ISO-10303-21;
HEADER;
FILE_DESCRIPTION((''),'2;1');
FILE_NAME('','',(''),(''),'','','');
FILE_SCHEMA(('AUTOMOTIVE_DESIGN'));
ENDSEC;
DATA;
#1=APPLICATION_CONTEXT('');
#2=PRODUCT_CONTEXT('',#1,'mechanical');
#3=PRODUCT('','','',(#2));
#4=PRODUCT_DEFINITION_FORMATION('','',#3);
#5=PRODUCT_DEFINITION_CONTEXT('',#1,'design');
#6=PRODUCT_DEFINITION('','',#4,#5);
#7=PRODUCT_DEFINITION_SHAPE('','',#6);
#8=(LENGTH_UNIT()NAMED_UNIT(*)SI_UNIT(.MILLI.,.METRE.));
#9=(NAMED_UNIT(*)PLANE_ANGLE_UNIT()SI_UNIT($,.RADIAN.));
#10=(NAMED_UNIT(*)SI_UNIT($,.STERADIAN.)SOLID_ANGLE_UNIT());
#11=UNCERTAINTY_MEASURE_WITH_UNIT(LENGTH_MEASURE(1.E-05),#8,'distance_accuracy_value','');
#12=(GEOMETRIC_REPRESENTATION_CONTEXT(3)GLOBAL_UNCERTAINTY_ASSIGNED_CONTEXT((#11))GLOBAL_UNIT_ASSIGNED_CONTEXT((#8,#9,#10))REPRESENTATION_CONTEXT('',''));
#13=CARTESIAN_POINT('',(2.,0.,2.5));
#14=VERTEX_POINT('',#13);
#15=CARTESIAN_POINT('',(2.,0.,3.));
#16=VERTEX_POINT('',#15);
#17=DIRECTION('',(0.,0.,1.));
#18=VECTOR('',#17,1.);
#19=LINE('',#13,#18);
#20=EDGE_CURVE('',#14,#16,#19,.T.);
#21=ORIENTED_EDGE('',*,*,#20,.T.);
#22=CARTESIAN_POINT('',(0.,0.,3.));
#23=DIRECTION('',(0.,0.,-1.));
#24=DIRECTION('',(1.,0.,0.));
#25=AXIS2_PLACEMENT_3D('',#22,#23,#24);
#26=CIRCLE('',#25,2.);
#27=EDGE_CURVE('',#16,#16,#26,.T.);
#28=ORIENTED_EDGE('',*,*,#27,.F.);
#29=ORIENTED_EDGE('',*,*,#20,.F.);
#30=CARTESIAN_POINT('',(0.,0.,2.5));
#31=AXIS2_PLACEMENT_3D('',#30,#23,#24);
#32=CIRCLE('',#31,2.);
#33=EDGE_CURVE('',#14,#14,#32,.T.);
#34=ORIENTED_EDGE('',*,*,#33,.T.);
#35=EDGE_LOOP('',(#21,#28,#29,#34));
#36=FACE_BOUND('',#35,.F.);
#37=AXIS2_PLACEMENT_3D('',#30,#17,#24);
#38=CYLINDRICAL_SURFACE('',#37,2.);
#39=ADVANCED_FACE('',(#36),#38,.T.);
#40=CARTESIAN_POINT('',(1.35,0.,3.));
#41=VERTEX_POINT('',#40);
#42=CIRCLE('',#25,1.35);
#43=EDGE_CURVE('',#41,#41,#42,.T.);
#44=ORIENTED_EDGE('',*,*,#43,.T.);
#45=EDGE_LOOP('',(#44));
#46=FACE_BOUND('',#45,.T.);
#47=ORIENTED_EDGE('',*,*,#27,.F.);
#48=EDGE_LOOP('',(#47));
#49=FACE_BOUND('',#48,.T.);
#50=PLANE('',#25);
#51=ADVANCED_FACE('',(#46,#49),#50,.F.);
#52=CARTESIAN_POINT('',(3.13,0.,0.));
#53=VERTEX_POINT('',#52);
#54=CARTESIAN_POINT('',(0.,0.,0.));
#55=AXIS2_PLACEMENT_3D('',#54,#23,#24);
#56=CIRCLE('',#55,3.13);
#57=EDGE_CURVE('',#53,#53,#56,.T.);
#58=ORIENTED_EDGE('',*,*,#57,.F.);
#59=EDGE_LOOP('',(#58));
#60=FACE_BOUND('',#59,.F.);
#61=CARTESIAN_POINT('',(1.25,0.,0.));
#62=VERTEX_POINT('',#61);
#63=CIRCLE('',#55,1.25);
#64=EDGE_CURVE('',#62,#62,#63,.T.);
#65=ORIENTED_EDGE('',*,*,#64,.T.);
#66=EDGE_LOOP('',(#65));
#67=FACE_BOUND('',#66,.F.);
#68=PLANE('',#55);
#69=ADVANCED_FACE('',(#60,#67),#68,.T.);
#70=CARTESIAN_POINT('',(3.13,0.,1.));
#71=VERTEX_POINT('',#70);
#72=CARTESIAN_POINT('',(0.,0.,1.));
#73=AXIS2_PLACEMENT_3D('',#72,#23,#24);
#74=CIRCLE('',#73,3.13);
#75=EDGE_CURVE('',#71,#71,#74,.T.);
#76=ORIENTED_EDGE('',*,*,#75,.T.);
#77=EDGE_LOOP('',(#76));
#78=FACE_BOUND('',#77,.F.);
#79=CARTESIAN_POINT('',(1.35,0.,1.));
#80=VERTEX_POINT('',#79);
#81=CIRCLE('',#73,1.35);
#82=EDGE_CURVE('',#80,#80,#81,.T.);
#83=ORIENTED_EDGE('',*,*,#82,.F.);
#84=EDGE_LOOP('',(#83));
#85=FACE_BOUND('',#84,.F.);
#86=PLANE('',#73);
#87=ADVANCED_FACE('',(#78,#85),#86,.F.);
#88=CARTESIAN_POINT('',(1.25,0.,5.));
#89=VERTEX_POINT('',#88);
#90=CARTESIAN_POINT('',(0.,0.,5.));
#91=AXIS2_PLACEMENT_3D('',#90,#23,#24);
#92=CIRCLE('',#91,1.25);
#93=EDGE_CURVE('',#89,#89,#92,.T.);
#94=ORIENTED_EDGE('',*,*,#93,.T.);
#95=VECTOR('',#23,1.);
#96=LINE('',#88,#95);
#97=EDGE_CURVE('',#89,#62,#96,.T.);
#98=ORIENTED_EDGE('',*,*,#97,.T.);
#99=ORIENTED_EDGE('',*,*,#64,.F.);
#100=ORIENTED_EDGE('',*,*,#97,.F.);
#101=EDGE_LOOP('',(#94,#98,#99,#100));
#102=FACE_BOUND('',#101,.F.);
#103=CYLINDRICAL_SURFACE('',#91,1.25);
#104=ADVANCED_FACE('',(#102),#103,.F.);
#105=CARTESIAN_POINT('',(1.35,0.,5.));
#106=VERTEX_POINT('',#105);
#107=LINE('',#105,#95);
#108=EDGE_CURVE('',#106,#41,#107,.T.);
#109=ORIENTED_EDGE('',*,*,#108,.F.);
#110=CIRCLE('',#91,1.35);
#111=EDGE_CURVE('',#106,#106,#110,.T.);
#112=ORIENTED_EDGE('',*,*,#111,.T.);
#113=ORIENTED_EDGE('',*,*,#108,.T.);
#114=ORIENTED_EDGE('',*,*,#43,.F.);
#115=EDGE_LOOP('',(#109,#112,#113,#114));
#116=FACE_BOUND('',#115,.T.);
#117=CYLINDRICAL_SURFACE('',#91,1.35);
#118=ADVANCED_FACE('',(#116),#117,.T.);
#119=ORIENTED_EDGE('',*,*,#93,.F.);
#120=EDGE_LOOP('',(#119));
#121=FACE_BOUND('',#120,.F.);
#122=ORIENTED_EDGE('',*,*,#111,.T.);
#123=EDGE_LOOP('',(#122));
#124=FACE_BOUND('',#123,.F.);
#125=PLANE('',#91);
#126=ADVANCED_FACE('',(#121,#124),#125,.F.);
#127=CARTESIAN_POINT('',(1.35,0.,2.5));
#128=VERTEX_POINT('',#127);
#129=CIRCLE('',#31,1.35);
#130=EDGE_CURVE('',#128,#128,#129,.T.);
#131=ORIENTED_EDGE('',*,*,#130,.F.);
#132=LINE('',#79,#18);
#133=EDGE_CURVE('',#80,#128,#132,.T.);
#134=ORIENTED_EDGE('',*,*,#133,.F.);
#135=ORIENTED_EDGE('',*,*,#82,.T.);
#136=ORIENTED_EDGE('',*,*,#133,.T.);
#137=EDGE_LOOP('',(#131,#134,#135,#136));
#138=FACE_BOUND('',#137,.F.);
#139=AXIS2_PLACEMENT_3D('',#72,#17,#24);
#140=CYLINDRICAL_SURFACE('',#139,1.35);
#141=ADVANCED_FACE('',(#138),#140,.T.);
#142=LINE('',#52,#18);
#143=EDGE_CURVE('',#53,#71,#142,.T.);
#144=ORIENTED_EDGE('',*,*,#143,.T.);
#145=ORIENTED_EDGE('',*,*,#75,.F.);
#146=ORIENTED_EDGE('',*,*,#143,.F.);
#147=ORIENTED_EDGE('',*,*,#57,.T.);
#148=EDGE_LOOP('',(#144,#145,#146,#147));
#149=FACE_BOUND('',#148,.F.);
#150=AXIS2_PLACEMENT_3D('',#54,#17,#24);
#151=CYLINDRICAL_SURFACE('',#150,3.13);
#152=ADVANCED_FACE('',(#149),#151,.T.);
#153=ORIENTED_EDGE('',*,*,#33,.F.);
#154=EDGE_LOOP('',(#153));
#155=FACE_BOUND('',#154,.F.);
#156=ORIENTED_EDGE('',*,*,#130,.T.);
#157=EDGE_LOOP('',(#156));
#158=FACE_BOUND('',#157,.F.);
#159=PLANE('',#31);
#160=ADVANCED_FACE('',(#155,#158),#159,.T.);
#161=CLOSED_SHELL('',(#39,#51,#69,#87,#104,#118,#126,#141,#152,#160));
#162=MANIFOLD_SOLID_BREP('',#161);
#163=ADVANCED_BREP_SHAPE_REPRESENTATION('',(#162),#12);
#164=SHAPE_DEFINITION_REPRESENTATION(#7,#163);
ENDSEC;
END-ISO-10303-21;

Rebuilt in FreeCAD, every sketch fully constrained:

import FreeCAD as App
import Part
import Sketcher

V = App.Vector
Q = App.Units.Quantity

doc = App.newDocument("Part")
params = doc.addObject("Spreadsheet::Sheet", "Params")
for row, (alias, value) in enumerate([
    ("sketch1_height", "1 mm"),
    ("sketch1_height2", "2 mm"),
    ("sketch1_height3", "5 mm"),
    ("sketch1_width", "0.1 mm"),
    ("sketch1_height4", "1.5 mm"),
    ("revolution_angle", "360 deg"),
], start=1):
    params.set(f"A{row}", alias)
    params.set(f"B{row}", "=" + value)
    params.setAlias(f"B{row}", alias)

body = doc.addObject("PartDesign::Body", "Body")

sketch1 = body.newObject("Sketcher::SketchObject", "Sketch")
sketch1.AttachmentSupport = (doc.getObject("XZ_Plane"), [""])
sketch1.MapMode = "FlatFace"
sketch1.addGeometry(Part.LineSegment(V(3.13, 0, 0), V(3.13, 1, 0)), False)
sketch1.addGeometry(Part.LineSegment(V(3.13, 1, 0), V(1.35, 1, 0)), False)
sketch1.addGeometry(Part.LineSegment(V(1.35, 1, 0), V(1.35, 2.5, 0)), False)
sketch1.addGeometry(Part.LineSegment(V(1.35, 2.5, 0), V(2, 2.5, 0)), False)
sketch1.addGeometry(Part.LineSegment(V(2, 2.5, 0), V(2, 3, 0)), False)
sketch1.addGeometry(Part.LineSegment(V(2, 3, 0), V(1.35, 3, 0)), False)
sketch1.addGeometry(Part.LineSegment(V(1.35, 3, 0), V(1.35, 5, 0)), False)
sketch1.addGeometry(Part.LineSegment(V(1.35, 5, 0), V(1.25, 5, 0)), False)
sketch1.addGeometry(Part.LineSegment(V(1.25, 5, 0), V(1.25, 0, 0)), False)
sketch1.addGeometry(Part.LineSegment(V(1.25, 0, 0), V(3.13, 0, 0)), False)
sketch1.addConstraint(Sketcher.Constraint("Coincident", 0, 2, 1, 1))
sketch1.addConstraint(Sketcher.Constraint("Coincident", 1, 2, 2, 1))
sketch1.addConstraint(Sketcher.Constraint("Coincident", 2, 2, 3, 1))
sketch1.addConstraint(Sketcher.Constraint("Coincident", 3, 2, 4, 1))
sketch1.addConstraint(Sketcher.Constraint("Coincident", 4, 2, 5, 1))
sketch1.addConstraint(Sketcher.Constraint("Coincident", 5, 2, 6, 1))
sketch1.addConstraint(Sketcher.Constraint("Coincident", 6, 2, 7, 1))
sketch1.addConstraint(Sketcher.Constraint("Coincident", 7, 2, 8, 1))
sketch1.addConstraint(Sketcher.Constraint("Coincident", 8, 2, 9, 1))
sketch1.addConstraint(Sketcher.Constraint("Coincident", 9, 2, 0, 1))
sketch1.addConstraint(Sketcher.Constraint("Vertical", 0))
sketch1.addConstraint(Sketcher.Constraint("Horizontal", 1))
sketch1.addConstraint(Sketcher.Constraint("Vertical", 2))
sketch1.addConstraint(Sketcher.Constraint("Horizontal", 3))
sketch1.addConstraint(Sketcher.Constraint("Vertical", 4))
sketch1.addConstraint(Sketcher.Constraint("Horizontal", 5))
sketch1.addConstraint(Sketcher.Constraint("Vertical", 6))
sketch1.addConstraint(Sketcher.Constraint("Horizontal", 7))
sketch1.addConstraint(Sketcher.Constraint("Vertical", 8))
sketch1.addConstraint(Sketcher.Constraint("Horizontal", 9))
sketch1.addConstraint(Sketcher.Constraint("PointOnObject", 8, 2, -1))
sketch1.addConstraint(Sketcher.Constraint("Vertical", 2, 2, 5, 2))
sketch1.addConstraint(Sketcher.Constraint("DistanceY", 0, 1, 0, 2, Q("1 mm")))
sketch1.addConstraint(Sketcher.Constraint("DistanceY", 6, 1, 6, 2, Q("2 mm")))
sketch1.addConstraint(Sketcher.Constraint("DistanceY", 8, 2, 8, 1, Q("5 mm")))
sketch1.addConstraint(Sketcher.Constraint("DistanceX", 7, 2, 7, 1, Q("0.1 mm")))
sketch1.addConstraint(Sketcher.Constraint("DistanceY", 2, 1, 2, 2, Q("1.5 mm")))
sketch1.addConstraint(Sketcher.Constraint("DistanceX", -1, 1, 3, 2, Q("2 mm")))
sketch1.addConstraint(Sketcher.Constraint("DistanceX", 1, 2, 1, 1, Q("1.78 mm")))
sketch1.addConstraint(Sketcher.Constraint("DistanceX", 3, 1, 3, 2, Q("0.65 mm")))
sketch1.setExpression("Constraints[22]", "Params.sketch1_height")
sketch1.setExpression("Constraints[23]", "Params.sketch1_height2")
sketch1.setExpression("Constraints[24]", "Params.sketch1_height3")
sketch1.setExpression("Constraints[25]", "Params.sketch1_width")
sketch1.setExpression("Constraints[26]", "Params.sketch1_height4")
revolution = body.newObject("PartDesign::Revolution", "Revolution")
revolution.Profile = sketch1
revolution.ReferenceAxis = (sketch1, ["V_Axis"])
revolution.setExpression("Angle", "Params.revolution_angle")

doc.recompute()
